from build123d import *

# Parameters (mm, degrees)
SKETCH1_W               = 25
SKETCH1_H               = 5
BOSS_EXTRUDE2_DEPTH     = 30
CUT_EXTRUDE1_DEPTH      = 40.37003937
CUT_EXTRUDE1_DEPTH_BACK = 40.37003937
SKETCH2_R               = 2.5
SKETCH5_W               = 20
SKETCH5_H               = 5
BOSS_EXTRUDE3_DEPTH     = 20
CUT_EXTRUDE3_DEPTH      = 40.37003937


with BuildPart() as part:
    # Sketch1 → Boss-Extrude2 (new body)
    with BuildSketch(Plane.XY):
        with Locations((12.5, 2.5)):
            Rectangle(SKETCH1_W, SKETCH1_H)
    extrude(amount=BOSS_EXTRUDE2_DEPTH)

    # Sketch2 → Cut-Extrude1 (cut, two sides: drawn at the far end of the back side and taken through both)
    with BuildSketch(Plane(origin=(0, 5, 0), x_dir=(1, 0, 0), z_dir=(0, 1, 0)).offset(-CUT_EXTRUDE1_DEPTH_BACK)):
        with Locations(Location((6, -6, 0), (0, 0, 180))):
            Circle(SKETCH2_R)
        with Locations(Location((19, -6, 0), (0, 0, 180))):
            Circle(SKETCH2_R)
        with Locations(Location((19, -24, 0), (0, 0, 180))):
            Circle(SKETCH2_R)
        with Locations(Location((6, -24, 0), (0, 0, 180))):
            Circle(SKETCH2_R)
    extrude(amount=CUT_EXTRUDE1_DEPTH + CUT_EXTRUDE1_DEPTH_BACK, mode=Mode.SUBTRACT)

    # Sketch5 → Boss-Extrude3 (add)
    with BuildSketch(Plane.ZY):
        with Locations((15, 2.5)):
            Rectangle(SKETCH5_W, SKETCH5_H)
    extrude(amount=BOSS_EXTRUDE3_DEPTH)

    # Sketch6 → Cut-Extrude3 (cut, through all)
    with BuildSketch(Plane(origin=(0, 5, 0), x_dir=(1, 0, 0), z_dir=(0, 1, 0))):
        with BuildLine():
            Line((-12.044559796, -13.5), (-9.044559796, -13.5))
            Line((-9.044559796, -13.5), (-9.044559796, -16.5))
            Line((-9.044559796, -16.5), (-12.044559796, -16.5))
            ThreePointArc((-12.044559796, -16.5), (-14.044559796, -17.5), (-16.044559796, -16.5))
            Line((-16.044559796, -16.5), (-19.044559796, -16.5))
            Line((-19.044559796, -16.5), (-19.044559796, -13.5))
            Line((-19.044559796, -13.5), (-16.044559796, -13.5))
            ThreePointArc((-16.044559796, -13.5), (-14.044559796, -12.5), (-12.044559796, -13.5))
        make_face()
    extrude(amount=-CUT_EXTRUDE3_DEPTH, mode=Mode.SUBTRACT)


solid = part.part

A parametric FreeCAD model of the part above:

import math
import FreeCAD as App
import Part
import Sketcher
Q = App.Units.Quantity


def add_polygon(sketch, points):
    """Adds a closed chain of lines whose ends are joined by coincident constraints."""
    first, n = sketch.GeometryCount, len(points)
    for a, b in zip(points, points[1:] + points[:1]):
        sketch.addGeometry(Part.LineSegment(App.Vector(*a, 0), App.Vector(*b, 0)), False)
    for i in range(n):
        sketch.addConstraint(Sketcher.Constraint("Coincident", first + i, 2, first + (i + 1) % n, 1))

doc = App.newDocument("Part")
body = doc.addObject("PartDesign::Body", "Body")

# Sketch on XY plane
sketch1 = doc.addObject("Sketcher::SketchObject", "Sketch")
body.addObject(sketch1)
sketch1.AttachmentSupport = (doc.XY_Plane, [""])
sketch1.MapMode = "FlatFace"
add_polygon(sketch1, [(0, 5), (0, 0), (25, 0), (25, 5)])  # lines 0-3
sketch1.addConstraint(Sketcher.Constraint("Vertical", 0))
sketch1.addConstraint(Sketcher.Constraint("Horizontal", 1))
sketch1.addConstraint(Sketcher.Constraint("Vertical", 2))
sketch1.addConstraint(Sketcher.Constraint("Horizontal", 3))
sketch1.addConstraint(Sketcher.Constraint("Coincident", 0, 2, -1, 1))
sketch1.addConstraint(Sketcher.Constraint("DistanceX", 1, 1, 1, 2, Q("25 mm")))
sketch1.addConstraint(Sketcher.Constraint("DistanceY", 0, 2, 0, 1, Q("5 mm")))
pad1 = doc.addObject("PartDesign::Pad", "Pad")
body.addObject(pad1)
pad1.Profile = sketch1
pad1.Length = 30

# Sketch on XZ plane
sketch2 = doc.addObject("Sketcher::SketchObject", "Sketch001")
body.addObject(sketch2)
sketch2.AttachmentSupport = (doc.XZ_Plane, [""])
sketch2.MapMode = "FlatFace"
sketch2.AttachmentOffset = App.Placement(App.Vector(0, 0, -5), App.Rotation())
sketch2.addGeometry(Part.Circle(App.Vector(6, 6, 0), App.Vector(0, 0, 1), 2.5), False)
sketch2.addGeometry(Part.Circle(App.Vector(19, 6, 0), App.Vector(0, 0, 1), 2.5), False)
sketch2.addGeometry(Part.Circle(App.Vector(19, 24, 0), App.Vector(0, 0, 1), 2.5), False)
sketch2.addGeometry(Part.Circle(App.Vector(6, 24, 0), App.Vector(0, 0, 1), 2.5), False)
sketch2.addConstraint(Sketcher.Constraint("Equal", 0, 1))
sketch2.addConstraint(Sketcher.Constraint("Equal", 1, 2))
sketch2.addConstraint(Sketcher.Constraint("Equal", 2, 3))
sketch2.addConstraint(Sketcher.Constraint("Horizontal", 0, 3, 1, 3))
sketch2.addConstraint(Sketcher.Constraint("Horizontal", 2, 3, 3, 3))
sketch2.addConstraint(Sketcher.Constraint("Vertical", 1, 3, 2, 3))
sketch2.addConstraint(Sketcher.Constraint("Vertical", 0, 3, 3, 3))
sketch2.addConstraint(Sketcher.Constraint("Diameter", 0, Q("5 mm")))
sketch2.addConstraint(Sketcher.Constraint("DistanceX", -1, 1, 0, 3, Q("6 mm")))
sketch2.addConstraint(Sketcher.Constraint("DistanceY", -1, 1, 0, 3, Q("6 mm")))
sketch2.addConstraint(Sketcher.Constraint("DistanceX", -1, 1, 1, 3, Q("19 mm")))
sketch2.addConstraint(Sketcher.Constraint("DistanceY", -1, 1, 2, 3, Q("24 mm")))
pocket1 = doc.addObject("PartDesign::Pocket", "Pocket")
body.addObject(pocket1)
pocket1.Profile = sketch2
pocket1.Type = "ThroughAll"
pocket1.Midplane = True

# Sketch on YZ plane
sketch3 = doc.addObject("Sketcher::SketchObject", "Sketch002")
body.addObject(sketch3)
sketch3.AttachmentSupport = (doc.YZ_Plane, [""])
sketch3.MapMode = "FlatFace"
add_polygon(sketch3, [(5, 5), (0, 5), (0, 25), (5, 25)])  # lines 0-3
sketch3.addConstraint(Sketcher.Constraint("Horizontal", 0))
sketch3.addConstraint(Sketcher.Constraint("Vertical", 1))
sketch3.addConstraint(Sketcher.Constraint("Horizontal", 2))
sketch3.addConstraint(Sketcher.Constraint("Vertical", 3))
sketch3.addConstraint(Sketcher.Constraint("PointOnObject", 0, 2, -2))
sketch3.addConstraint(Sketcher.Constraint("DistanceX", 0, 2, 0, 1, Q("5 mm")))
sketch3.addConstraint(Sketcher.Constraint("DistanceY", 1, 1, 1, 2, Q("20 mm")))
sketch3.addConstraint(Sketcher.Constraint("DistanceY", -1, 1, 0, 2, Q("5 mm")))
pad2 = doc.addObject("PartDesign::Pad", "Pad001")
body.addObject(pad2)
pad2.Profile = sketch3
pad2.Length = 20
pad2.Reversed = True

# Sketch on XZ plane
sketch4 = doc.addObject("Sketcher::SketchObject", "Sketch003")
body.addObject(sketch4)
sketch4.AttachmentSupport = (doc.XZ_Plane, [""])
sketch4.MapMode = "FlatFace"
sketch4.AttachmentOffset = App.Placement(App.Vector(0, 0, -5), App.Rotation())
sketch4.addGeometry(Part.LineSegment(App.Vector(-9, 13.5, 0), App.Vector(-12, 13.5, 0)), False)
sketch4.addGeometry(Part.ArcOfCircle(Part.Circle(App.Vector(-14, 15, 0), App.Vector(0, 0, 1), 2.5), math.radians(-143), math.radians(-37)), False)
sketch4.addGeometry(Part.LineSegment(App.Vector(-16, 13.5, 0), App.Vector(-19, 13.5, 0)), False)
sketch4.addGeometry(Part.LineSegment(App.Vector(-19, 13.5, 0), App.Vector(-19, 16.5, 0)), False)
sketch4.addGeometry(Part.LineSegment(App.Vector(-19, 16.5, 0), App.Vector(-16, 16.5, 0)), False)
sketch4.addGeometry(Part.ArcOfCircle(Part.Circle(App.Vector(-14, 15, 0), App.Vector(0, 0, 1), 2.5), math.radians(37), math.radians(143)), False)
sketch4.addGeometry(Part.LineSegment(App.Vector(-12, 16.5, 0), App.Vector(-9, 16.5, 0)), False)
sketch4.addGeometry(Part.LineSegment(App.Vector(-9, 16.5, 0), App.Vector(-9, 13.5, 0)), False)
sketch4.addConstraint(Sketcher.Constraint("Coincident", 0, 2, 1, 2))
sketch4.addConstraint(Sketcher.Constraint("Coincident", 1, 1, 2, 1))
sketch4.addConstraint(Sketcher.Constraint("Coincident", 2, 2, 3, 1))
sketch4.addConstraint(Sketcher.Constraint("Coincident", 3, 2, 4, 1))
sketch4.addConstraint(Sketcher.Constraint("Coincident", 4, 2, 5, 2))
sketch4.addConstraint(Sketcher.Constraint("Coincident", 5, 1, 6, 1))
sketch4.addConstraint(Sketcher.Constraint("Coincident", 6, 2, 7, 1))
sketch4.addConstraint(Sketcher.Constraint("Coincident", 7, 2, 0, 1))
sketch4.addConstraint(Sketcher.Constraint("Horizontal", 0))
sketch4.addConstraint(Sketcher.Constraint("Horizontal", 2))
sketch4.addConstraint(Sketcher.Constraint("Vertical", 3))
sketch4.addConstraint(Sketcher.Constraint("Horizontal", 4))
sketch4.addConstraint(Sketcher.Constraint("Horizontal", 6))
sketch4.addConstraint(Sketcher.Constraint("Vertical", 7))
sketch4.addConstraint(Sketcher.Constraint("Coincident", 5, 3, 1, 3))
sketch4.addConstraint(Sketcher.Constraint("Equal", 1, 5))
sketch4.addConstraint(Sketcher.Constraint("Horizontal", 0, 2, 1, 1))
sketch4.addConstraint(Sketcher.Constraint("Horizontal", 4, 2, 5, 1))
sketch4.addConstraint(Sketcher.Constraint("Vertical", 1, 1, 4, 2))
sketch4.addConstraint(Sketcher.Constraint("Equal", 0, 2))
sketch4.addConstraint(Sketcher.Constraint("Equal", 6, 3))
sketch4.addConstraint(Sketcher.Constraint("Radius", 1, Q("2.5 mm")))
sketch4.addConstraint(Sketcher.Constraint("DistanceX", 0, 2, 0, 1, Q("3 mm")))
sketch4.addConstraint(Sketcher.Constraint("DistanceY", -1, 1, 1, 3, Q("15 mm")))
sketch4.addConstraint(Sketcher.Constraint("DistanceX", 1, 3, -1, 1, Q("14.04456 mm")))
pocket2 = doc.addObject("PartDesign::Pocket", "Pocket001")
body.addObject(pocket2)
pocket2.Profile = sketch4
pocket2.Type = "ThroughAll"
pocket2.Reversed = True

doc.recompute()
